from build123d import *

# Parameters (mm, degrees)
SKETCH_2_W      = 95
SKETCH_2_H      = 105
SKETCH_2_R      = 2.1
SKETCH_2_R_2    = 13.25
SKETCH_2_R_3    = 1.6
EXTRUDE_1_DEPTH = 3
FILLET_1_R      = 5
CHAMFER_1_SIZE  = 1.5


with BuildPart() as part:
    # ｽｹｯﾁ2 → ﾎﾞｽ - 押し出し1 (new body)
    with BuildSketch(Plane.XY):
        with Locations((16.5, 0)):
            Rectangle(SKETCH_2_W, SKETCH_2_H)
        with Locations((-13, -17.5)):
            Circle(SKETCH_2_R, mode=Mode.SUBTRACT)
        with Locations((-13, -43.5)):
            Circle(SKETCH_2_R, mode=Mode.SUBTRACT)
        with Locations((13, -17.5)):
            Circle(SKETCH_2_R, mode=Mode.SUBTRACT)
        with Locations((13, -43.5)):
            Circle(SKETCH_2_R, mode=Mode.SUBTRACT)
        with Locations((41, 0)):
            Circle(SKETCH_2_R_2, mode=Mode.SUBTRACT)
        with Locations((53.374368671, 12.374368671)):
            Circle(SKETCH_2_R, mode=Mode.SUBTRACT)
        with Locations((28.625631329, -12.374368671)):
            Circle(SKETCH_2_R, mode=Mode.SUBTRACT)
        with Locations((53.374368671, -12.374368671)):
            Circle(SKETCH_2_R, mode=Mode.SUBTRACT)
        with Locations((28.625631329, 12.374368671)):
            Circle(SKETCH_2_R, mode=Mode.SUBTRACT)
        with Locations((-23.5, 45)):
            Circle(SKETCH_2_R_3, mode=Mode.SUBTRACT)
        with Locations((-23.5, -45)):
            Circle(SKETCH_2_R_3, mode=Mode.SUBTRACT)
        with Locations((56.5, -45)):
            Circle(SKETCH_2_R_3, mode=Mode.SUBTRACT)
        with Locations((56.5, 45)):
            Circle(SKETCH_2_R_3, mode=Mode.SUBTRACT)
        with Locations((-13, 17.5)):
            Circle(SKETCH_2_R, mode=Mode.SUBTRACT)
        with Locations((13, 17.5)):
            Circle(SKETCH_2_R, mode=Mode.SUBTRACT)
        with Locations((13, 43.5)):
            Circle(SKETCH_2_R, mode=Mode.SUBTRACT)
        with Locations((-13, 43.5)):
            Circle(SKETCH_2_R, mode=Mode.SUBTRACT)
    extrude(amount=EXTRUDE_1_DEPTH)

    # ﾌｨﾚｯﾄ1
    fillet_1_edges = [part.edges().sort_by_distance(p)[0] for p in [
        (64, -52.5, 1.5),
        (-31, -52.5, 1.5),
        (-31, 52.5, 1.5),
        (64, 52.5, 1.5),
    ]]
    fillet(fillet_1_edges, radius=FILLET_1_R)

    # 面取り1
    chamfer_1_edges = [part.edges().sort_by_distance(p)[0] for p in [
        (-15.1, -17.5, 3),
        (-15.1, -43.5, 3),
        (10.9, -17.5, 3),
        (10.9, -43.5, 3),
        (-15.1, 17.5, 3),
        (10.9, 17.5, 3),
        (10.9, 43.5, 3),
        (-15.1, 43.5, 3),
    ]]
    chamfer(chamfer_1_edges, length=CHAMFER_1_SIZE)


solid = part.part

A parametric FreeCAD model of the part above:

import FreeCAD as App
import Part
import Sketcher
from FreeCAD import Vector


def edges_at(feature, points):
    """Names of the edges that pass closest to the given points."""
    edges = feature.Shape.Edges
    near = lambda p: min(range(len(edges)), key=lambda i: edges[i].distToShape(Part.Vertex(*p))[0])
    return sorted({f"Edge{near(p) + 1}" for p in points})

doc = App.newDocument("Part")
body = doc.addObject("PartDesign::Body", "Body")

# Sketch on XY plane
sketch1 = body.newObject("Sketcher::SketchObject", "Sketch")
sketch1.AttachmentSupport = (doc.getObject("XY_Plane"), [""])
sketch1.MapMode = "FlatFace"
sketch1.addGeometry([
    Part.LineSegment(Vector(-31, 52.5, 0), Vector(-31, -52.5, 0)),  # 0
    Part.LineSegment(Vector(-31, -52.5, 0), Vector(64, -52.5, 0)),  # 1
    Part.LineSegment(Vector(64, -52.5, 0), Vector(64, 52.5, 0)),  # 2
    Part.LineSegment(Vector(64, 52.5, 0), Vector(-31, 52.5, 0)),  # 3
    Part.Circle(Vector(-23.5, -45, 0), Vector(0, 0, 1), 1.6),  # 4
    Part.Circle(Vector(-13, -43.5, 0), Vector(0, 0, 1), 2.1),  # 5
    Part.Circle(Vector(13, -43.5, 0), Vector(0, 0, 1), 2.1),  # 6
    Part.Circle(Vector(-13, -17.5, 0), Vector(0, 0, 1), 2.1),  # 7
    Part.Circle(Vector(13, -17.5, 0), Vector(0, 0, 1), 2.1),  # 8
    Part.Circle(Vector(56.5, -45, 0), Vector(0, 0, 1), 1.6),  # 9
    Part.Circle(Vector(28.6, -12.4, 0), Vector(0, 0, 1), 2.1),  # 10
    Part.Circle(Vector(53.4, -12.4, 0), Vector(0, 0, 1), 2.1),  # 11
    Part.Circle(Vector(-13, 17.5, 0), Vector(0, 0, 1), 2.1),  # 12
    Part.Circle(Vector(13, 17.5, 0), Vector(0, 0, 1), 2.1),  # 13
    Part.Circle(Vector(-23.5, 45, 0), Vector(0, 0, 1), 1.6),  # 14
    Part.Circle(Vector(-13, 43.5, 0), Vector(0, 0, 1), 2.1),  # 15
    Part.Circle(Vector(13, 43.5, 0), Vector(0, 0, 1), 2.1),  # 16
    Part.Circle(Vector(28.6, 12.4, 0), Vector(0, 0, 1), 2.1),  # 17
    Part.Circle(Vector(41, 0, 0), Vector(0, 0, 1), 13.2),  # 18
    Part.Circle(Vector(53.4, 12.4, 0), Vector(0, 0, 1), 2.1),  # 19
    Part.Circle(Vector(56.5, 45, 0), Vector(0, 0, 1), 1.6),  # 20
], False)
sketch1.addConstraint([
    Sketcher.Constraint("Coincident", 0, 2, 1, 1),
    Sketcher.Constraint("Coincident", 1, 2, 2, 1),
    Sketcher.Constraint("Coincident", 2, 2, 3, 1),
    Sketcher.Constraint("Coincident", 3, 2, 0, 1),
    Sketcher.Constraint("Vertical", 0),
    Sketcher.Constraint("Horizontal", 1),
    Sketcher.Constraint("Vertical", 2),
    Sketcher.Constraint("Horizontal", 3),
    Sketcher.Constraint("Equal", 5, 6),
    Sketcher.Constraint("Equal", 6, 7),
    Sketcher.Constraint("Equal", 7, 8),
    Sketcher.Constraint("Equal", 4, 9),
    Sketcher.Constraint("Equal", 8, 10),
    Sketcher.Constraint("Equal", 10, 11),
    Sketcher.Constraint("Equal", 11, 12),
    Sketcher.Constraint("Equal", 12, 13),
    Sketcher.Constraint("Equal", 9, 14),
    Sketcher.Constraint("Equal", 13, 15),
    Sketcher.Constraint("Equal", 15, 16),
    Sketcher.Constraint("Equal", 16, 17),
    Sketcher.Constraint("Equal", 17, 19),
    Sketcher.Constraint("Equal", 14, 20),
    Sketcher.Constraint("Symmetric", 8, 3, 12, 3, -1, 1),
    Sketcher.Constraint("Symmetric", 7, 3, 13, 3, -1, 1),
    Sketcher.Constraint("Symmetric", 6, 3, 15, 3, -1, 1),
    Sketcher.Constraint("Symmetric", 5, 3, 16, 3, -1, 1),
    Sketcher.Constraint("Symmetric", 5, 3, 6, 3, -2),
    Sketcher.Constraint("Symmetric", 7, 3, 8, 3, -2),
    Sketcher.Constraint("Symmetric", 4, 3, 14, 3, -1),
    Sketcher.Constraint("Symmetric", 10, 3, 17, 3, -1),
    Sketcher.Constraint("Symmetric", 11, 3, 19, 3, -1),
    Sketcher.Constraint("Symmetric", 9, 3, 20, 3, -1),
    Sketcher.Constraint("PointOnObject", 18, 3, -1),
    Sketcher.Constraint("Horizontal", 4, 3, 9, 3),
    Sketcher.Constraint("Horizontal", 10, 3, 11, 3),
    Sketcher.Constraint("Vertical", 5, 3, 7, 3),
    Sketcher.Constraint("Diameter", 4, 3.2),
    Sketcher.Constraint("Diameter", 5, 4.2),
    Sketcher.Constraint("Diameter", 18, 26.5),
    Sketcher.Constraint("DistanceX", 1, 1, 1, 2, 95.0),
    Sketcher.Constraint("DistanceY", 0, 2, 0, 1, 105.0),
    Sketcher.Constraint("DistanceY", 4, 3, -1, 1, 45.0),
    Sketcher.Constraint("DistanceX", 5, 3, -1, 1, 13.0),
    Sketcher.Constraint("DistanceX", -1, 1, 18, 3, 41.0),
    Sketcher.Constraint("DistanceX", 0, 2, -1, 1, 31.0),
    Sketcher.Constraint("DistanceY", 5, 3, 7, 3, 26.0),
    Sketcher.Constraint("DistanceX", 4, 3, 9, 3, 80.0),
    Sketcher.Constraint("DistanceY", 7, 3, 12, 3, 35.0),
    Sketcher.Constraint("DistanceY", 0, 2, 5, 3, 9.0),
    Sketcher.Constraint("DistanceX", 4, 3, -1, 1, 23.5),
    Sketcher.Constraint("DistanceX", -1, 1, 10, 3, 28.625631),
    Sketcher.Constraint("DistanceY", 10, 3, -1, 1, 12.374369),
    Sketcher.Constraint("DistanceX", -1, 1, 11, 3, 53.374369),
])
pad1 = body.newObject("PartDesign::Pad", "Pad")
pad1.Profile = sketch1
pad1.Length = 3
doc.recompute()

fillet = body.newObject("PartDesign::Fillet", "Fillet")
fillet.Base = (pad1, edges_at(pad1, [
    (64, -52.5, 1.5),
    (-31, -52.5, 1.5),
    (-31, 52.5, 1.5),
    (64, 52.5, 1.5),
]))
fillet.Radius = 5
doc.recompute()

chamfer = body.newObject("PartDesign::Chamfer", "Chamfer")
chamfer.Base = (fillet, edges_at(fillet, [
    (-15.1, -17.5, 3),
    (-15.1, -43.5, 3),
    (10.9, -17.5, 3),
    (10.9, -43.5, 3),
    (-15.1, 17.5, 3),
    (10.9, 17.5, 3),
    (10.9, 43.5, 3),
    (-15.1, 43.5, 3),
]))
chamfer.Size = 1.5

doc.recompute()
